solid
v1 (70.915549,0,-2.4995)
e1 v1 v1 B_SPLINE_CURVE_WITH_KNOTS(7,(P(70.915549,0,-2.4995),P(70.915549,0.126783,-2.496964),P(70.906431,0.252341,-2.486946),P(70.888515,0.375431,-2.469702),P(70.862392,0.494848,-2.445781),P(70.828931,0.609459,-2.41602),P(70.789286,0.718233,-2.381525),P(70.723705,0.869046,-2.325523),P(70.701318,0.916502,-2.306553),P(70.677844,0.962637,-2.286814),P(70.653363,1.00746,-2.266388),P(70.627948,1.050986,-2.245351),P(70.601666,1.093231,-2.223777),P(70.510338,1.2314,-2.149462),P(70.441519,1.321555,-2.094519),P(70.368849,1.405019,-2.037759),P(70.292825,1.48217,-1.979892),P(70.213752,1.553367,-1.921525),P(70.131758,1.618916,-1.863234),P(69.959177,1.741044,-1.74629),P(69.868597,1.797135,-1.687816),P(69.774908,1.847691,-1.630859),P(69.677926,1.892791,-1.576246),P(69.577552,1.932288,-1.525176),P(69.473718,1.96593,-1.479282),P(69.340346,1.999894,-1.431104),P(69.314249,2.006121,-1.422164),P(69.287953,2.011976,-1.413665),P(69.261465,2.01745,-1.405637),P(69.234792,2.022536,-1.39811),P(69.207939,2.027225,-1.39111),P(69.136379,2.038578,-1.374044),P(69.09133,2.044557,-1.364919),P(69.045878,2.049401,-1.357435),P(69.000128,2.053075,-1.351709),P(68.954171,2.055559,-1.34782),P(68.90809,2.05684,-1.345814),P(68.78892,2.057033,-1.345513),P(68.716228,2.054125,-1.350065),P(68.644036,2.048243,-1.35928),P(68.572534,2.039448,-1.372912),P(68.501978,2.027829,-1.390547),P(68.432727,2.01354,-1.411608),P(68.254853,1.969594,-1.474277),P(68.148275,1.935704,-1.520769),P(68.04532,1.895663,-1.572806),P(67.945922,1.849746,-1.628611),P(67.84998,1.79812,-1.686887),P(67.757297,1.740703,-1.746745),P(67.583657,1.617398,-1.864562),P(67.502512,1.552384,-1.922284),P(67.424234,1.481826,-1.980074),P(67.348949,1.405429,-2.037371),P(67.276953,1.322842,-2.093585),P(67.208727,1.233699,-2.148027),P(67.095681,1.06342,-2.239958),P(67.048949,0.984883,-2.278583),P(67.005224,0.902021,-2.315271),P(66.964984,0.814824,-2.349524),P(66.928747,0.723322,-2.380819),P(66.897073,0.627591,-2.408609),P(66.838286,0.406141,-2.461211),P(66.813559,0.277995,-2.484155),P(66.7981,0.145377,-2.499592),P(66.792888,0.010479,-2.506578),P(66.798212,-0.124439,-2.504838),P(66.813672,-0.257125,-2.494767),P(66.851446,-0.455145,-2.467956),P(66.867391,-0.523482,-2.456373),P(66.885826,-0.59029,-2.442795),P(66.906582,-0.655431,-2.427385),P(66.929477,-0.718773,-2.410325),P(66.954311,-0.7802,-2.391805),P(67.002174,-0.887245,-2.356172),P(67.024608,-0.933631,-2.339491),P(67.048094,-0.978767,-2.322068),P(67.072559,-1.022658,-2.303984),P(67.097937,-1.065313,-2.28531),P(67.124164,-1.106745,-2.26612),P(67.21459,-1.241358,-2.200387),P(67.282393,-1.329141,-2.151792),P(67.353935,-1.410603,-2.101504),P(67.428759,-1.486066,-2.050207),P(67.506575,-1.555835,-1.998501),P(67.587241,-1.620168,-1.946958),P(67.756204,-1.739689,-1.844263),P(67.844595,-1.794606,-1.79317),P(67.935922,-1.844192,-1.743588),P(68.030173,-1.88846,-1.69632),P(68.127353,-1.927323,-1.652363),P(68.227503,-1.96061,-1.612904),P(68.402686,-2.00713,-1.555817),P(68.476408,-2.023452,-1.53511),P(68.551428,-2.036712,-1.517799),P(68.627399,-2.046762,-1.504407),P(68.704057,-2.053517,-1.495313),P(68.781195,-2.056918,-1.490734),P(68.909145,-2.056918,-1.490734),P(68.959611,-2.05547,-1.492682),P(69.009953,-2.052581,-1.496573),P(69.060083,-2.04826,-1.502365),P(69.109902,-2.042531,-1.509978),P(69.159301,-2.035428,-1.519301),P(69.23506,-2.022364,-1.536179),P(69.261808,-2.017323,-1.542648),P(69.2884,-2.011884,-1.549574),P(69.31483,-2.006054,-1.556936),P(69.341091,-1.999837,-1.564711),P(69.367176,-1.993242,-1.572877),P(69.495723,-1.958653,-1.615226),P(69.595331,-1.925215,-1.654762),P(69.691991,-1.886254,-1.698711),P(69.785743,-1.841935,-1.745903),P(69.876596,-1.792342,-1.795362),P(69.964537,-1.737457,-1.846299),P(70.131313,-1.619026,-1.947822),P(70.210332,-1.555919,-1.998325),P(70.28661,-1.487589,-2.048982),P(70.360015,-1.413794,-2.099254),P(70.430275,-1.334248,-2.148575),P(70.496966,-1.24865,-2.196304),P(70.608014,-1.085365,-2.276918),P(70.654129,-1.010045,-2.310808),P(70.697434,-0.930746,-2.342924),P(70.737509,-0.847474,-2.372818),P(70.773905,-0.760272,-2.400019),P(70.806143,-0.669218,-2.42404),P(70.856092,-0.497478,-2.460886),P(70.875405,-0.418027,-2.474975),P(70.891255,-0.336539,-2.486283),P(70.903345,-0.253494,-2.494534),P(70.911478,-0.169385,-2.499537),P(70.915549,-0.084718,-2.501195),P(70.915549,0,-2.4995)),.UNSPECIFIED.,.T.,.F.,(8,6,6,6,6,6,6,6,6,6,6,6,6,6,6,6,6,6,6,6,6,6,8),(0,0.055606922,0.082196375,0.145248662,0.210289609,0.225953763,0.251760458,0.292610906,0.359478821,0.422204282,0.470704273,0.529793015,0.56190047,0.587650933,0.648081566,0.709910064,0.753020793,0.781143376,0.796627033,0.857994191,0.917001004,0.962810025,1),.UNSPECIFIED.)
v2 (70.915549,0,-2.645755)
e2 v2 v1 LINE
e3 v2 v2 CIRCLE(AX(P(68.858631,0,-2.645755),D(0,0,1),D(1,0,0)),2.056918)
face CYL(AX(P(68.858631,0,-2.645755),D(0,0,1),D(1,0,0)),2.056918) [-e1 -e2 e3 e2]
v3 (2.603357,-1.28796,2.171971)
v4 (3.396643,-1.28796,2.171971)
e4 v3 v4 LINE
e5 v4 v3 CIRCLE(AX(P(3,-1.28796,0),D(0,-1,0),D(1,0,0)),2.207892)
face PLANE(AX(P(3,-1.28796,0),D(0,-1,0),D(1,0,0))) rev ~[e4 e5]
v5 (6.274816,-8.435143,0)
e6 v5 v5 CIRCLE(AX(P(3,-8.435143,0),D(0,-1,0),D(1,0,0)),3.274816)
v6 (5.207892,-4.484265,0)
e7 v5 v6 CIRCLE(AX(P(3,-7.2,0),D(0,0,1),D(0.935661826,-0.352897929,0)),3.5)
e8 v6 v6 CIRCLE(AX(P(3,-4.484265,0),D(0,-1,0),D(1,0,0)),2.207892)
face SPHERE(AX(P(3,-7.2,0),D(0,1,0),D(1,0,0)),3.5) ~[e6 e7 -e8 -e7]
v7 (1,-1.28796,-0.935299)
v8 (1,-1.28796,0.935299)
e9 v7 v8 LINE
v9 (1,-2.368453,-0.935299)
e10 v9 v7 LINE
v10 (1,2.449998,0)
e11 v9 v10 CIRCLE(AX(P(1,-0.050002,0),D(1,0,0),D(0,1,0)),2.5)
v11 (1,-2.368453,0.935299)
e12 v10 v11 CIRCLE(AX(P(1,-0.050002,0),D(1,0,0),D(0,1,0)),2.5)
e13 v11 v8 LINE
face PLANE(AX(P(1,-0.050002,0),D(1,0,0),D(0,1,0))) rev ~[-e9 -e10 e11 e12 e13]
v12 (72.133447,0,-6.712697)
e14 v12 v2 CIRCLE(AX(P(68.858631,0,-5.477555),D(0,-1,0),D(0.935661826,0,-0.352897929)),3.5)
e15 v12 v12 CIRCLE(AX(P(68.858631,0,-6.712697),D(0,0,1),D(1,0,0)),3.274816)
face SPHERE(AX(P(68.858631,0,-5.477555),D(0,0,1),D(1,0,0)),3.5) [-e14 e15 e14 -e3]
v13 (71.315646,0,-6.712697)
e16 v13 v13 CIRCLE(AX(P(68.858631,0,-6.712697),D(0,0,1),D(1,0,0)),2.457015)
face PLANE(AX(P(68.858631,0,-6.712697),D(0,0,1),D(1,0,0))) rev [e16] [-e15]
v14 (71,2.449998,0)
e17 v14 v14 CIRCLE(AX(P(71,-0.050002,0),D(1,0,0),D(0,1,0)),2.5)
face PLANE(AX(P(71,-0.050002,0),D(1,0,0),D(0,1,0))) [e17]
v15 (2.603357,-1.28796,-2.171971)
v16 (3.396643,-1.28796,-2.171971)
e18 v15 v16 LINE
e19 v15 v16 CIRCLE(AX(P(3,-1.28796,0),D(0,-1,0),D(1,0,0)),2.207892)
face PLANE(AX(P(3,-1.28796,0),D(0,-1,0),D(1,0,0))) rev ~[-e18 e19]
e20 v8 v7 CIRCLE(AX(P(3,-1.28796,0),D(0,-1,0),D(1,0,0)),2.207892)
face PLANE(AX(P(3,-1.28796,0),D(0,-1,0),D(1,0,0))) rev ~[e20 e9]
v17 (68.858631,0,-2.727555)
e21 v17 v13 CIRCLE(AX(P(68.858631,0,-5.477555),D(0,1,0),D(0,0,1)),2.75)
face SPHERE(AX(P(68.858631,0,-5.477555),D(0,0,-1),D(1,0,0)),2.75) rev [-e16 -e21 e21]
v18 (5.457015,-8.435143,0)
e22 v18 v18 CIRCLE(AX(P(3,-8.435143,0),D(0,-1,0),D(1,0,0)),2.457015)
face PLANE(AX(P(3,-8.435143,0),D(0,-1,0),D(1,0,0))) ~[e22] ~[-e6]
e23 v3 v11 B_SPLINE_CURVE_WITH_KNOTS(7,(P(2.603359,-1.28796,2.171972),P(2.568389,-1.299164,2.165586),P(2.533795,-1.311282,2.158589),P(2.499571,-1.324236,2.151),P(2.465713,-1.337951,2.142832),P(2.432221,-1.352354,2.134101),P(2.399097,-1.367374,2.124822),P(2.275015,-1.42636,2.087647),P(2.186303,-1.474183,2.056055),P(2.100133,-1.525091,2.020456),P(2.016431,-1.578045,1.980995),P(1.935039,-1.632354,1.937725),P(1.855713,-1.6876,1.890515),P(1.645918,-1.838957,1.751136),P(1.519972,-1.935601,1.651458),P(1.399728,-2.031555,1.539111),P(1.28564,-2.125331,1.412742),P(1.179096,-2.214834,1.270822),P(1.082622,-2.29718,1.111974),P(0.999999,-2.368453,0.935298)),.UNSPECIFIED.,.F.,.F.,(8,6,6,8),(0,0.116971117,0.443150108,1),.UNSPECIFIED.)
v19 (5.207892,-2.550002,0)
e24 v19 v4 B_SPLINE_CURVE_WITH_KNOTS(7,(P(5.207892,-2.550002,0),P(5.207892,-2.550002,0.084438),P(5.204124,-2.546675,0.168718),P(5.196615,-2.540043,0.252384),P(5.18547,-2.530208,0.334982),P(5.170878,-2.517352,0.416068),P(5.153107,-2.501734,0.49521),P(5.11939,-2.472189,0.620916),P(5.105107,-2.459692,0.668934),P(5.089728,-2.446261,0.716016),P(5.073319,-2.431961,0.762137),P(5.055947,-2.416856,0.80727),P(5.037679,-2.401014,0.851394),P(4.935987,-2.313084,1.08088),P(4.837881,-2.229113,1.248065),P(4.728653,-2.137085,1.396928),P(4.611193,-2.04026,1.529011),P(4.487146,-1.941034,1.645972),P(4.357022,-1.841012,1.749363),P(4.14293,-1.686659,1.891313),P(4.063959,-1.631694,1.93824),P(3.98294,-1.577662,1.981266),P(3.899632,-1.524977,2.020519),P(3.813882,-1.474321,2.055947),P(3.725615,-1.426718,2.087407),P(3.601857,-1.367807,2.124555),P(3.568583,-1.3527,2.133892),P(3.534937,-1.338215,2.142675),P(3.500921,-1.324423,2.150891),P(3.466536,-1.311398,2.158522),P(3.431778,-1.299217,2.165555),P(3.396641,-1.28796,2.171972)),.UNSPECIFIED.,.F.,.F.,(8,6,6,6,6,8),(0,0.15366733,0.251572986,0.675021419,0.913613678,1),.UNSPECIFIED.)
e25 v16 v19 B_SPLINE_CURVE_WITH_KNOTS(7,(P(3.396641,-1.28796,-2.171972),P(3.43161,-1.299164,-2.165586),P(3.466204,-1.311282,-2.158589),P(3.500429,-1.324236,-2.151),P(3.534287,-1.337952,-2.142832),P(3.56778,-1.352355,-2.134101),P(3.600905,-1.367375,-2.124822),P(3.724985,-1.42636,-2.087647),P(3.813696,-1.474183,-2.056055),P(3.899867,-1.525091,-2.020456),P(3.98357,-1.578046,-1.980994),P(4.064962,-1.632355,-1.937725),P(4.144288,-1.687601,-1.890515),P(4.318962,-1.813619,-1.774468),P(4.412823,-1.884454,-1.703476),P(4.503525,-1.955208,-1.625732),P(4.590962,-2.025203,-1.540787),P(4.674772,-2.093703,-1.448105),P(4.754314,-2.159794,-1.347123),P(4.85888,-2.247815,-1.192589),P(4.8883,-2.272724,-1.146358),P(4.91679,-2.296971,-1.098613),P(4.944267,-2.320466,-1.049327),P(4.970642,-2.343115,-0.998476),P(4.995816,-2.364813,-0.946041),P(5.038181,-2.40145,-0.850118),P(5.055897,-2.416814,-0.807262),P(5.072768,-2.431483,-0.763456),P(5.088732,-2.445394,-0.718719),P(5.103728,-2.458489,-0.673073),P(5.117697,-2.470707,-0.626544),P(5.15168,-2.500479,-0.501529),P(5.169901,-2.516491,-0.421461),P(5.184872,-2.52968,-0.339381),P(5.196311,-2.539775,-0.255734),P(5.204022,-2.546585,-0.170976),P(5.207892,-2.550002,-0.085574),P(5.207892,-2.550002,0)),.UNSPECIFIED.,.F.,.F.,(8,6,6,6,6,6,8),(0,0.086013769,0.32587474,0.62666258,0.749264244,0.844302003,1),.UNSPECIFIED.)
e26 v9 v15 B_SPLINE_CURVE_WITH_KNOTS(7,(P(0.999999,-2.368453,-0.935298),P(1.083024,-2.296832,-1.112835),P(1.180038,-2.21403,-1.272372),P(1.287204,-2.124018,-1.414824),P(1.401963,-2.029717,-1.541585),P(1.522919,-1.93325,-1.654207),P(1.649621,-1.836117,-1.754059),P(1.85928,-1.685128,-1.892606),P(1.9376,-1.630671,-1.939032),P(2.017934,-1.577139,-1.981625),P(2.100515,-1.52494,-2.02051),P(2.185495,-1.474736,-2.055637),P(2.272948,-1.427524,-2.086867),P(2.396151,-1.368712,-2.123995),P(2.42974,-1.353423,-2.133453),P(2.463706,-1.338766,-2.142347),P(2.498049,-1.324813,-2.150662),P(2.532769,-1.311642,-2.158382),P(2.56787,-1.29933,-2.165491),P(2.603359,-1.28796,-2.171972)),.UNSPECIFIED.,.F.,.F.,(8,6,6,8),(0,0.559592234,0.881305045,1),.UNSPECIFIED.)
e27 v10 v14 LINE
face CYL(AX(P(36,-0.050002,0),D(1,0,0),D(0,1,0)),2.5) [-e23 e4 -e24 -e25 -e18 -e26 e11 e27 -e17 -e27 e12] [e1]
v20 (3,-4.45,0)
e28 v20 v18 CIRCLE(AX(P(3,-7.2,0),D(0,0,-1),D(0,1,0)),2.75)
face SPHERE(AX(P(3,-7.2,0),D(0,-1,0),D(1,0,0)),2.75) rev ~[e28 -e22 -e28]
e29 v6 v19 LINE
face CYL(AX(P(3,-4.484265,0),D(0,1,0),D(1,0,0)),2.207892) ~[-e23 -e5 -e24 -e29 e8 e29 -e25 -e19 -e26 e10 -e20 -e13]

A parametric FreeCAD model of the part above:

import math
import FreeCAD as App
import Part
import Sketcher
from FreeCAD import Vector

doc = App.newDocument("Part")
body = doc.addObject("PartDesign::Body", "Body")

# Sketch on XY plane
sketch1 = doc.addObject("Sketcher::SketchObject", "Sketch")
body.addObject(sketch1)
sketch1.AttachmentSupport = (doc.XY_Plane, [""])
sketch1.MapMode = "FlatFace"
sketch1.addGeometry([
    Part.ArcOfCircle(Part.Circle(Vector(3, 0, 0), Vector(0, 0, 1), 2.8), math.radians(-27), math.radians(90)),  # 0
    Part.LineSegment(Vector(5.5, -1.2, 0), Vector(6.3, -1.2, 0)),  # 1
    Part.ArcOfCircle(Part.Circle(Vector(3, 0, 0), Vector(0, 0, 1), 3.5), math.radians(-21), math.radians(51)),  # 2
    Part.LineSegment(Vector(5.2, 2.7, 0), Vector(5.2, 5.9, 0)),  # 3
    Part.LineSegment(Vector(5.2, 5.9, 0), Vector(3, 5.9, 0)),  # 4
    Part.LineSegment(Vector(3, 5.9, 0), Vector(3, 2.8, 0)),  # 5
], False)
sketch1.addGeometry(Part.LineSegment(Vector(3, 5.9, 0), Vector(3, -1.2, 0)), True)  # axis
sketch1.addConstraint([
    Sketcher.Constraint("Coincident", 0, 1, 1, 1),
    Sketcher.Constraint("Coincident", 1, 2, 2, 1),
    Sketcher.Constraint("Coincident", 2, 2, 3, 1),
    Sketcher.Constraint("Coincident", 3, 2, 4, 1),
    Sketcher.Constraint("Coincident", 4, 2, 5, 1),
    Sketcher.Constraint("Coincident", 5, 2, 0, 2),
    Sketcher.Constraint("Horizontal", 1),
    Sketcher.Constraint("Vertical", 3),
    Sketcher.Constraint("Horizontal", 4),
    Sketcher.Constraint("Vertical", 5),
    Sketcher.Constraint("Vertical", 6),
    Sketcher.Constraint("Coincident", 2, 3, 0, 3),
    Sketcher.Constraint("Coincident", 6, 1, 4, 2),
    Sketcher.Constraint("PointOnObject", 0, 3, -1),
    Sketcher.Constraint("Horizontal", 1, 2, 6, 2),
    Sketcher.Constraint("Vertical", 2, 3, 4, 2),
    Sketcher.Constraint("Radius", 2, 3.5),
    Sketcher.Constraint("Radius", 0, 2.75),
    Sketcher.Constraint("DistanceX", -1, 1, 0, 3, 3.0),
    Sketcher.Constraint("DistanceX", 1, 1, 1, 2, 0.817801),
    Sketcher.Constraint("DistanceX", 4, 2, 4, 1, 2.207892),
    Sketcher.Constraint("DistanceY", 5, 2, 5, 1, 3.16204),
])
revolution = doc.addObject("PartDesign::Revolution", "Revolution")
body.addObject(revolution)
revolution.Profile = sketch1
revolution.ReferenceAxis = (sketch1, ["Axis0"])
revolution.Angle = 360

# Sketch on YZ plane
sketch2 = doc.addObject("Sketcher::SketchObject", "Sketch001")
body.addObject(sketch2)
sketch2.AttachmentSupport = (doc.YZ_Plane, [""])
sketch2.MapMode = "FlatFace"
sketch2.AttachmentOffset = App.Placement(Vector(0, 0, 36), App.Rotation())
sketch2.addGeometry(Part.Circle(Vector(7.1, 0, 0), Vector(0, 0, 1), 2.5), False)
sketch2.addConstraint([
    Sketcher.Constraint("PointOnObject", 0, 3, -1),
    Sketcher.Constraint("Diameter", 0, 5.0),
    Sketcher.Constraint("DistanceX", -1, 1, 0, 3, 7.149998),
])
pad1 = doc.addObject("PartDesign::Pad", "Pad")
body.addObject(pad1)
pad1.Profile = sketch2
pad1.Length = 70
pad1.Midplane = True
body2 = doc.addObject("PartDesign::Body", "Body001")
doc.recompute()

body.Placement = App.Placement(Vector(0, -7.2, 0), App.Rotation(Vector(0, 0, 1), 0))
boolean = doc.addObject("PartDesign::Boolean", "Boolean")
body2.addObject(boolean)
boolean.Type = "Fuse"
boolean.addObjects([body])

# Sketch on XZ plane
sketch3 = doc.addObject("Sketcher::SketchObject", "Sketch002")
body2.addObject(sketch3)
sketch3.AttachmentSupport = (doc.getObject("XZ_Plane001"), [""])
sketch3.MapMode = "FlatFace"
sketch3.addGeometry([
    Part.ArcOfCircle(Part.Circle(Vector(68.9, -5.5, 0), Vector(0, 0, 1), 2.8), math.radians(-27), math.radians(90)),  # 0
    Part.LineSegment(Vector(71.3, -6.7, 0), Vector(72.1, -6.7, 0)),  # 1
    Part.ArcOfCircle(Part.Circle(Vector(68.9, -5.5, 0), Vector(0, 0, 1), 3.5), math.radians(-21), math.radians(54)),  # 2
    Part.LineSegment(Vector(70.9, -2.6, 0), Vector(70.9, 0.4, 0)),  # 3
    Part.LineSegment(Vector(70.9, 0.4, 0), Vector(68.9, 0.4, 0)),  # 4
    Part.LineSegment(Vector(68.9, 0.4, 0), Vector(68.9, -2.7, 0)),  # 5
], False)
sketch3.addGeometry(Part.LineSegment(Vector(68.9, -6.7, 0), Vector(68.9, 0.4, 0)), True)  # axis
sketch3.addConstraint([
    Sketcher.Constraint("Coincident", 0, 1, 1, 1),
    Sketcher.Constraint("Coincident", 1, 2, 2, 1),
    Sketcher.Constraint("Coincident", 2, 2, 3, 1),
    Sketcher.Constraint("Coincident", 3, 2, 4, 1),
    Sketcher.Constraint("Coincident", 4, 2, 5, 1),
    Sketcher.Constraint("Coincident", 5, 2, 0, 2),
    Sketcher.Constraint("Horizontal", 1),
    Sketcher.Constraint("Vertical", 3),
    Sketcher.Constraint("Horizontal", 4),
    Sketcher.Constraint("Vertical", 5),
    Sketcher.Constraint("Vertical", 6),
    Sketcher.Constraint("Coincident", 2, 3, 0, 3),
    Sketcher.Constraint("Coincident", 6, 2, 4, 2),
    Sketcher.Constraint("Horizontal", 1, 2, 6, 1),
    Sketcher.Constraint("Vertical", 2, 3, 4, 2),
    Sketcher.Constraint("Radius", 2, 3.5),
    Sketcher.Constraint("Radius", 0, 2.75),
    Sketcher.Constraint("DistanceX", 1, 1, 1, 2, 0.817801),
    Sketcher.Constraint("DistanceY", 3, 1, 3, 2, 3.08024),
    Sketcher.Constraint("DistanceY", 5, 2, 5, 1, 3.16204),
    Sketcher.Constraint("DistanceX", -1, 1, 0, 3, 68.858631),
    Sketcher.Constraint("DistanceY", 0, 3, -1, 1, 5.477555),
])
revolution2 = doc.addObject("PartDesign::Revolution", "Revolution001")
body2.addObject(revolution2)
revolution2.Profile = sketch3
revolution2.ReferenceAxis = (sketch3, ["Axis0"])
revolution2.Angle = 360

doc.recompute()
